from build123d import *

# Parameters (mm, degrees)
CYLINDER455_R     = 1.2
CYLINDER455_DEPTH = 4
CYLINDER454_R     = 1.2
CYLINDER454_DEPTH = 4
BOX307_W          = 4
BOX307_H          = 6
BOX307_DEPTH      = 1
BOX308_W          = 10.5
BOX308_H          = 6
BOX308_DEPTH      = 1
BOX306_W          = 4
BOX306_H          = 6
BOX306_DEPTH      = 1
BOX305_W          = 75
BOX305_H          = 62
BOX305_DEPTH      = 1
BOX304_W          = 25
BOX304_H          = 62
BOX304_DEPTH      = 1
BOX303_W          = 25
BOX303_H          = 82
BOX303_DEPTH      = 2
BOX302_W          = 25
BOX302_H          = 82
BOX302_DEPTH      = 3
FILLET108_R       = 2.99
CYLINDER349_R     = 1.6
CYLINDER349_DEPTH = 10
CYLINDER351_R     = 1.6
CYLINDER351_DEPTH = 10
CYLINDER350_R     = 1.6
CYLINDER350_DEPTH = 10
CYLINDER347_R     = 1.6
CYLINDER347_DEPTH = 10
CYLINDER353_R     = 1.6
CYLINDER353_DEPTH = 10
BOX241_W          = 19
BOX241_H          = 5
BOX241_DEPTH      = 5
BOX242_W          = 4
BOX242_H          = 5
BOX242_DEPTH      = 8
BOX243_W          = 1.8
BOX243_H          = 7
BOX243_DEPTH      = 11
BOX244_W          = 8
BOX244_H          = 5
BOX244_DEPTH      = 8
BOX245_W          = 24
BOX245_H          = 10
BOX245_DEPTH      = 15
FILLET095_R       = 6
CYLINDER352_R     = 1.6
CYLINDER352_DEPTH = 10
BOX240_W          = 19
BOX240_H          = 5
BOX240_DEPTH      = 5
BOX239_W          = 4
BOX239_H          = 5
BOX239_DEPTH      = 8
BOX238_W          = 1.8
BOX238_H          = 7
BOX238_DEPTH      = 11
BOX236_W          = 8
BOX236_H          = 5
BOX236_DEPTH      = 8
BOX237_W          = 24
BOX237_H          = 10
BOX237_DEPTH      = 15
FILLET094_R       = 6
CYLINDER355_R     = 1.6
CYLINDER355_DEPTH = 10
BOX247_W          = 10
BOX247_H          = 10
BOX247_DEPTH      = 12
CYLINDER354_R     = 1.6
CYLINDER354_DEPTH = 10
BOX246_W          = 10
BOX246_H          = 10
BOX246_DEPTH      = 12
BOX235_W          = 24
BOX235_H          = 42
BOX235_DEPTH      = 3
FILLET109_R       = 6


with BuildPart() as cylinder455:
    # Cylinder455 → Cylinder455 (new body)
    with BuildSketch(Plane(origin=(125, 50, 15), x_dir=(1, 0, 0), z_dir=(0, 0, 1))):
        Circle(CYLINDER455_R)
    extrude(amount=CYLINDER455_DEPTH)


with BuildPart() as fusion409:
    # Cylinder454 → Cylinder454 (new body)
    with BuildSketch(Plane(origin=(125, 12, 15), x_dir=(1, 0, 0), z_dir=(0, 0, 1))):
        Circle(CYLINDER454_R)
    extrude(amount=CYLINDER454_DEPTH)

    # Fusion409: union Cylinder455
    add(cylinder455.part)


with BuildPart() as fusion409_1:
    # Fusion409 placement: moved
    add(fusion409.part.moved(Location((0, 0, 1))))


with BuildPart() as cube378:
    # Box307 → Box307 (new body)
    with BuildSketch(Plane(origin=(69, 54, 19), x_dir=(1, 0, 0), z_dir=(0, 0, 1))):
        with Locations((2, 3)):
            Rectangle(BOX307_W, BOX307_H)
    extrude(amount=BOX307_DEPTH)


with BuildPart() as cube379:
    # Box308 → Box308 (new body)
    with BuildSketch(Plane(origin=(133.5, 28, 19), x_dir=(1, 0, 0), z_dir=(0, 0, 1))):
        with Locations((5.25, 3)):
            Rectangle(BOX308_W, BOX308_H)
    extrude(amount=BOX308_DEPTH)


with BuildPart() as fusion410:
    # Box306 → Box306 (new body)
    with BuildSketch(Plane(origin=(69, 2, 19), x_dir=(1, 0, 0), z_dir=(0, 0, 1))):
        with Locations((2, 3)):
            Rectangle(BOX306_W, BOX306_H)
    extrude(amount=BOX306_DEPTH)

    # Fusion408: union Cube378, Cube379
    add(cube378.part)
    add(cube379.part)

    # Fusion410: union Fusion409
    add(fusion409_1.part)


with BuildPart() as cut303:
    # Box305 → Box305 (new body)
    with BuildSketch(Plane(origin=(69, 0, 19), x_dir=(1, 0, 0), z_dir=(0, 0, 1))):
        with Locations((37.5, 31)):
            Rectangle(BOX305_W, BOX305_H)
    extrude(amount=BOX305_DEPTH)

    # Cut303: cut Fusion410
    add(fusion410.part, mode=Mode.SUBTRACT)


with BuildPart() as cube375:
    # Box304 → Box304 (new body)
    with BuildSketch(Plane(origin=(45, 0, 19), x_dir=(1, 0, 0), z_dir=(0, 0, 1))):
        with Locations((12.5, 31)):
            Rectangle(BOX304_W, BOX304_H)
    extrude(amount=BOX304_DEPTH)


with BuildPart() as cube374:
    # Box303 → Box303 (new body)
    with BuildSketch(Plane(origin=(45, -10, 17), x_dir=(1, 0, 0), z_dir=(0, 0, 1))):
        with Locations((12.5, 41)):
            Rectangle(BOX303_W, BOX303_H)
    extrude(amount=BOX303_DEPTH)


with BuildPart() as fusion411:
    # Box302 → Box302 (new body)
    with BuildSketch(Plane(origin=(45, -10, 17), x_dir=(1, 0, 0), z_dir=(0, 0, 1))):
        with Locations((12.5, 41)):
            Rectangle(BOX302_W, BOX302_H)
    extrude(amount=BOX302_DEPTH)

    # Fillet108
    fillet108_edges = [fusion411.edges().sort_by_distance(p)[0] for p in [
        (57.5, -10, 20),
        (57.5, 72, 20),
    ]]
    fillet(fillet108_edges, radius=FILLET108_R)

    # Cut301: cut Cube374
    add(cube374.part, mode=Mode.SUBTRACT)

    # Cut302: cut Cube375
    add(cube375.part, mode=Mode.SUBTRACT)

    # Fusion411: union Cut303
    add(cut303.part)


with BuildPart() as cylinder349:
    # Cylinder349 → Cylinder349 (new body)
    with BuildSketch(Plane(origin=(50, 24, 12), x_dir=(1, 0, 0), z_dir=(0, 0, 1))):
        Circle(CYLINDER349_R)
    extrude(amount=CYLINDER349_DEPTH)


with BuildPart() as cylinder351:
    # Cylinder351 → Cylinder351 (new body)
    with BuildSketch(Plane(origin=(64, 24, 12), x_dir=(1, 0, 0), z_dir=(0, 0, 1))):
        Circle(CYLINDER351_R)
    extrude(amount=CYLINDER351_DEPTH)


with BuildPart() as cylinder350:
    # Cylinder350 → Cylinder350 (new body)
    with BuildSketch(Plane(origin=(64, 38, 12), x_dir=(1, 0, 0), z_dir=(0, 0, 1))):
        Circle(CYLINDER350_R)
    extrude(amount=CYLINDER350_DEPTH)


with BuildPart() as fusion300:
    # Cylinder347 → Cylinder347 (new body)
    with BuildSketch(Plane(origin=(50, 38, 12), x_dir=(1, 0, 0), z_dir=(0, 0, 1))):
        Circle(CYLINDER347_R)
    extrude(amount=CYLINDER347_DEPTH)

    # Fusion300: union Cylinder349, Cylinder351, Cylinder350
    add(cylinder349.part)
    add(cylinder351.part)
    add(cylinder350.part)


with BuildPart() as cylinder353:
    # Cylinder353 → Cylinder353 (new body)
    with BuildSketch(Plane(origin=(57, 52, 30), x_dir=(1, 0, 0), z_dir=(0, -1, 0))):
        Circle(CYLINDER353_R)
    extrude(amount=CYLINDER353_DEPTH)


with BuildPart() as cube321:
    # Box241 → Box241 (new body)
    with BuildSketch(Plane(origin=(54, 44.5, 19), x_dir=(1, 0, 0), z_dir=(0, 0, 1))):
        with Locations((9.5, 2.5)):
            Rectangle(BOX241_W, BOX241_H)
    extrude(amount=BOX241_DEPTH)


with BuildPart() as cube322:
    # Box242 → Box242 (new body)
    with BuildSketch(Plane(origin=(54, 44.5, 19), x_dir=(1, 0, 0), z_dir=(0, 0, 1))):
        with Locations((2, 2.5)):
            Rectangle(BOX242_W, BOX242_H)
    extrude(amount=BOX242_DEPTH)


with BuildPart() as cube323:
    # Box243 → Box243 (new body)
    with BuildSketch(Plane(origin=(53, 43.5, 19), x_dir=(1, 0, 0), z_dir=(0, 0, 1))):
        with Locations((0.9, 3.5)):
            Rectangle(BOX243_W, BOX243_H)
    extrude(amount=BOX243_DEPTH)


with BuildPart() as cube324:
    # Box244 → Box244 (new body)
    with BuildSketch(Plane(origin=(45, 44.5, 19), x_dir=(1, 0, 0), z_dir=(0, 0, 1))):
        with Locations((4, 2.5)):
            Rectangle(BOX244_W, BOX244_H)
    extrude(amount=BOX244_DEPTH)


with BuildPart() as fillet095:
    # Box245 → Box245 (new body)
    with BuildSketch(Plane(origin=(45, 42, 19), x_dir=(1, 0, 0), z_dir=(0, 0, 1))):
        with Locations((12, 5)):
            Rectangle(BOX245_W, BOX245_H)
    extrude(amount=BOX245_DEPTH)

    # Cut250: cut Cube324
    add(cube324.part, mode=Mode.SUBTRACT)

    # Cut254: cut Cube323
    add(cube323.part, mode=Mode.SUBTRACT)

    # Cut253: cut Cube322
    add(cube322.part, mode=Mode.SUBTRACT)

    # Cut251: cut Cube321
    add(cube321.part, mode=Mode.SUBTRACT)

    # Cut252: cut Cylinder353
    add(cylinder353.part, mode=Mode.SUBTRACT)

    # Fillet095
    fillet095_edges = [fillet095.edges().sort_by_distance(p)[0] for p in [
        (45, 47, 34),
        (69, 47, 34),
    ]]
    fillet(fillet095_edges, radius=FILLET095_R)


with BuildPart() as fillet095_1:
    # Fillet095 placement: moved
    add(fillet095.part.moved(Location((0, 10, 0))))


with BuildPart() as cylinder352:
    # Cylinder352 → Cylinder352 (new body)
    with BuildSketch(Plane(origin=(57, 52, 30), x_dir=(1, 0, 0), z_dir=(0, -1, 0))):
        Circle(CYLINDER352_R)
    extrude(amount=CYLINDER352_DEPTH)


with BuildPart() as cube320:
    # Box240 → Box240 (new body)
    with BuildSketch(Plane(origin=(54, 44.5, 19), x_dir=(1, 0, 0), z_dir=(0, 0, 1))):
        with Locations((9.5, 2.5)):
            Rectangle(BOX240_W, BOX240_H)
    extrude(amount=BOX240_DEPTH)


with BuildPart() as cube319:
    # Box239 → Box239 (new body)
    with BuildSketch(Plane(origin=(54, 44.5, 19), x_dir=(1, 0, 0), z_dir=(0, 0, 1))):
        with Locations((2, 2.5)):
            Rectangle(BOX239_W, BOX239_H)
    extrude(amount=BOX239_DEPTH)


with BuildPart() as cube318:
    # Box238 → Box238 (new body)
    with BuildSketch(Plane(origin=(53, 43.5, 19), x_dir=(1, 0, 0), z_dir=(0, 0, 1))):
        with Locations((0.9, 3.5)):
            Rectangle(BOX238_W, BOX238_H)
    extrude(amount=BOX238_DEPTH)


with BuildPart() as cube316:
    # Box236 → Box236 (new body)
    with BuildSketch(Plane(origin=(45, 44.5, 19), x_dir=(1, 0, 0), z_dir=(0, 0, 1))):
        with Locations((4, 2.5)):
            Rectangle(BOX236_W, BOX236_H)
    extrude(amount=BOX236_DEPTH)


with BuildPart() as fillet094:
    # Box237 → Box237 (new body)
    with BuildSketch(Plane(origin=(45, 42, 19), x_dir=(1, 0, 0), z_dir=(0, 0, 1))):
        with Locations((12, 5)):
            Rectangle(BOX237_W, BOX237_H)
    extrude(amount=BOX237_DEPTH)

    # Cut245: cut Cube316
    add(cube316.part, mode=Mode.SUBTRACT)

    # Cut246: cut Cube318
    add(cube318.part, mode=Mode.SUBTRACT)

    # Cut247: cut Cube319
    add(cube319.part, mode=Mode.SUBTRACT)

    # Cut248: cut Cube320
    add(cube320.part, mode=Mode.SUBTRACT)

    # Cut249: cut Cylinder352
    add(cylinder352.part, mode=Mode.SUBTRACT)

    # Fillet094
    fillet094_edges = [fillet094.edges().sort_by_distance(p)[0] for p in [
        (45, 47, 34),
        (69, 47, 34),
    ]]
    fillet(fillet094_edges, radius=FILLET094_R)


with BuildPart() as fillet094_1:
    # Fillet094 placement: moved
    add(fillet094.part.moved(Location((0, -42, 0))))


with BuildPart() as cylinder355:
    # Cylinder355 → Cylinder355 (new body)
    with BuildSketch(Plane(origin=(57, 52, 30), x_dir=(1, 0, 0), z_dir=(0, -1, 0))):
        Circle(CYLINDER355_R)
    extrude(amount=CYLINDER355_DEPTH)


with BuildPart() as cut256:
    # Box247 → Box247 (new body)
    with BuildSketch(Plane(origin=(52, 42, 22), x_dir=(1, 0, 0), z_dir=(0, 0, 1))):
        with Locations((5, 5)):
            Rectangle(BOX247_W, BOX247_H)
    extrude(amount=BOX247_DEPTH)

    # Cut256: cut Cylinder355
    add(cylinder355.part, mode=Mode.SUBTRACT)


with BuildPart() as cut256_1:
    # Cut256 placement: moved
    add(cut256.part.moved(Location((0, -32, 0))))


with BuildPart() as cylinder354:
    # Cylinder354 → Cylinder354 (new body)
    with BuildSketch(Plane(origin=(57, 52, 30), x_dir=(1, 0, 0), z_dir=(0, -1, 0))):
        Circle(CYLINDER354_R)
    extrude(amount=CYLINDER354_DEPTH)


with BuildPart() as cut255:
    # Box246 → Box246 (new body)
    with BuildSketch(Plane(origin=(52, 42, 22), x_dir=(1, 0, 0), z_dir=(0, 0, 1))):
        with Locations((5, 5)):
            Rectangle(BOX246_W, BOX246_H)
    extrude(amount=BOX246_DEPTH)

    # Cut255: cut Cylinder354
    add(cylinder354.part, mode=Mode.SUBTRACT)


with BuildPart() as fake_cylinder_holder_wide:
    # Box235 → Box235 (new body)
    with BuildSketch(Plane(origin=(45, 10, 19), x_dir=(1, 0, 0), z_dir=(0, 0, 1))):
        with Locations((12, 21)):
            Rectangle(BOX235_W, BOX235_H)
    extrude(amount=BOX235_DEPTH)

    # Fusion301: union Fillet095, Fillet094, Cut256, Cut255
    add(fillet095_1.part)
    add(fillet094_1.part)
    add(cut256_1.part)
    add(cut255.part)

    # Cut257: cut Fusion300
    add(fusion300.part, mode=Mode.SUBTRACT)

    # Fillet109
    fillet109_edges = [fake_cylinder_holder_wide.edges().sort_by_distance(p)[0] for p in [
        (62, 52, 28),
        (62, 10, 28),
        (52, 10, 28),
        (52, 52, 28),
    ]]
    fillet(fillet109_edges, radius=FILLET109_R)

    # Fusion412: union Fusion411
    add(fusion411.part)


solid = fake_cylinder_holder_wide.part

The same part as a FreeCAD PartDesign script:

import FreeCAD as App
import Part
import Sketcher

V = App.Vector


def edges_at(feature, points):
    """Names of the edges that pass closest to the given points."""
    edges = feature.Shape.Edges
    near = lambda p: min(range(len(edges)), key=lambda i: edges[i].distToShape(Part.Vertex(*p))[0])
    return sorted({f"Edge{near(p) + 1}" for p in points})


def add_polygon(sketch, points):
    """Adds a closed chain of lines whose ends are joined by coincident constraints."""
    first, n = sketch.GeometryCount, len(points)
    for a, b in zip(points, points[1:] + points[:1]):
        sketch.addGeometry(Part.LineSegment(App.Vector(*a, 0), App.Vector(*b, 0)), False)
    for i in range(n):
        sketch.addConstraint(Sketcher.Constraint("Coincident", first + i, 2, first + (i + 1) % n, 1))

doc = App.newDocument("Part")
body = doc.addObject("PartDesign::Body", "Body")

# Sketch on XY plane
sketch1 = doc.addObject("Sketcher::SketchObject", "Sketch")
body.addObject(sketch1)
sketch1.AttachmentSupport = (doc.XY_Plane, [""])
sketch1.MapMode = "FlatFace"
sketch1.AttachmentOffset = App.Placement(V(0, 0, 15), App.Rotation())
sketch1.addGeometry(Part.Circle(V(125, 50, 0), V(0, 0, 1), 1.2), False)
sketch1.addConstraint(Sketcher.Constraint("Diameter", 0, 2.4))
sketch1.addConstraint(Sketcher.Constraint("DistanceX", -1, 1, 0, 3, 125.0))
sketch1.addConstraint(Sketcher.Constraint("DistanceY", -1, 1, 0, 3, 50.0))
pad1 = doc.addObject("PartDesign::Pad", "Pad")
body.addObject(pad1)
pad1.Profile = sketch1
pad1.Length = 4
body2 = doc.addObject("PartDesign::Body", "Body001")
body2.AllowCompound = True

# Sketch on XY plane
sketch2 = doc.addObject("Sketcher::SketchObject", "Sketch001")
body2.addObject(sketch2)
sketch2.AttachmentSupport = (doc.getObject("XY_Plane001"), [""])
sketch2.MapMode = "FlatFace"
sketch2.AttachmentOffset = App.Placement(V(0, 0, 15), App.Rotation())
sketch2.addGeometry(Part.Circle(V(125, 12, 0), V(0, 0, 1), 1.2), False)
sketch2.addConstraint(Sketcher.Constraint("Diameter", 0, 2.4))
sketch2.addConstraint(Sketcher.Constraint("DistanceX", -1, 1, 0, 3, 125.0))
sketch2.addConstraint(Sketcher.Constraint("DistanceY", -1, 1, 0, 3, 12.0))
pad2 = doc.addObject("PartDesign::Pad", "Pad001")
body2.addObject(pad2)
pad2.Profile = sketch2
pad2.Length = 4
doc.recompute()

boolean = doc.addObject("PartDesign::Boolean", "Boolean")
body2.addObject(boolean)
boolean.Type = "Fuse"
boolean.addObjects([body])
body3 = doc.addObject("PartDesign::Body", "Body002")
body3.AllowCompound = True
doc.recompute()

body2.Placement = App.Placement(V(0, 0, 1), App.Rotation(V(0, 0, 1), 0))
boolean2 = doc.addObject("PartDesign::Boolean", "Boolean001")
body3.addObject(boolean2)
boolean2.Type = "Fuse"
boolean2.addObjects([body2])
body4 = doc.addObject("PartDesign::Body", "Body003")

# Sketch on XY plane
sketch3 = doc.addObject("Sketcher::SketchObject", "Sketch002")
body4.addObject(sketch3)
sketch3.AttachmentSupport = (doc.getObject("XY_Plane003"), [""])
sketch3.MapMode = "FlatFace"
sketch3.AttachmentOffset = App.Placement(V(0, 0, 19), App.Rotation())
add_polygon(sketch3, [(69, 60), (69, 54), (73, 54), (73, 60)])  # lines 0-3
sketch3.addConstraint(Sketcher.Constraint("Vertical", 0))
sketch3.addConstraint(Sketcher.Constraint("Horizontal", 1))
sketch3.addConstraint(Sketcher.Constraint("Vertical", 2))
sketch3.addConstraint(Sketcher.Constraint("Horizontal", 3))
sketch3.addConstraint(Sketcher.Constraint("DistanceX", 1, 1, 1, 2, 4.0))
sketch3.addConstraint(Sketcher.Constraint("DistanceY", 0, 2, 0, 1, 6.0))
sketch3.addConstraint(Sketcher.Constraint("DistanceX", -1, 1, 0, 2, 69.0))
sketch3.addConstraint(Sketcher.Constraint("DistanceY", -1, 1, 0, 2, 54.0))
pad3 = doc.addObject("PartDesign::Pad", "Pad002")
body4.addObject(pad3)
pad3.Profile = sketch3
pad3.Length = 1
body5 = doc.addObject("PartDesign::Body", "Body004")

# Sketch on XY plane
sketch4 = doc.addObject("Sketcher::SketchObject", "Sketch003")
body5.addObject(sketch4)
sketch4.AttachmentSupport = (doc.getObject("XY_Plane004"), [""])
sketch4.MapMode = "FlatFace"
sketch4.AttachmentOffset = App.Placement(V(0, 0, 19), App.Rotation())
add_polygon(sketch4, [(134, 34), (134, 28), (144, 28), (144, 34)])  # lines 0-3
sketch4.addConstraint(Sketcher.Constraint("Vertical", 0))
sketch4.addConstraint(Sketcher.Constraint("Horizontal", 1))
sketch4.addConstraint(Sketcher.Constraint("Vertical", 2))
sketch4.addConstraint(Sketcher.Constraint("Horizontal", 3))
sketch4.addConstraint(Sketcher.Constraint("DistanceY", 0, 2, 0, 1, 6.0))
sketch4.addConstraint(Sketcher.Constraint("DistanceX", 1, 1, 1, 2, 10.5))
sketch4.addConstraint(Sketcher.Constraint("DistanceY", -1, 1, 0, 2, 28.0))
sketch4.addConstraint(Sketcher.Constraint("DistanceX", -1, 1, 1, 2, 144.0))
pad4 = doc.addObject("PartDesign::Pad", "Pad003")
body5.addObject(pad4)
pad4.Profile = sketch4
pad4.Length = 1
body6 = doc.addObject("PartDesign::Body", "Body005")
body6.AllowCompound = True

# Sketch on XY plane
sketch5 = doc.addObject("Sketcher::SketchObject", "Sketch004")
body6.addObject(sketch5)
sketch5.AttachmentSupport = (doc.getObject("XY_Plane005"), [""])
sketch5.MapMode = "FlatFace"
sketch5.AttachmentOffset = App.Placement(V(0, 0, 19), App.Rotation())
add_polygon(sketch5, [(69, 8), (69, 2), (73, 2), (73, 8)])  # lines 0-3
sketch5.addConstraint(Sketcher.Constraint("Vertical", 0))
sketch5.addConstraint(Sketcher.Constraint("Horizontal", 1))
sketch5.addConstraint(Sketcher.Constraint("Vertical", 2))
sketch5.addConstraint(Sketcher.Constraint("Horizontal", 3))
sketch5.addConstraint(Sketcher.Constraint("DistanceX", 1, 1, 1, 2, 4.0))
sketch5.addConstraint(Sketcher.Constraint("DistanceY", 0, 2, 0, 1, 6.0))
sketch5.addConstraint(Sketcher.Constraint("DistanceX", -1, 1, 0, 2, 69.0))
sketch5.addConstraint(Sketcher.Constraint("DistanceY", -1, 1, 0, 2, 2.0))
pad5 = doc.addObject("PartDesign::Pad", "Pad004")
body6.addObject(pad5)
pad5.Profile = sketch5
pad5.Length = 1
doc.recompute()

boolean3 = doc.addObject("PartDesign::Boolean", "Boolean002")
body6.addObject(boolean3)
boolean3.Type = "Fuse"
boolean3.addObjects([body4])
doc.recompute()

boolean4 = doc.addObject("PartDesign::Boolean", "Boolean003")
body6.addObject(boolean4)
boolean4.Type = "Fuse"
boolean4.addObjects([body5])
doc.recompute()

boolean5 = doc.addObject("PartDesign::Boolean", "Boolean004")
body6.addObject(boolean5)
boolean5.Type = "Fuse"
boolean5.addObjects([body3])
body7 = doc.addObject("PartDesign::Body", "Body006")

# Sketch on XY plane
sketch6 = doc.addObject("Sketcher::SketchObject", "Sketch005")
body7.addObject(sketch6)
sketch6.AttachmentSupport = (doc.getObject("XY_Plane006"), [""])
sketch6.MapMode = "FlatFace"
sketch6.AttachmentOffset = App.Placement(V(0, 0, 19), App.Rotation())
add_polygon(sketch6, [(69, 62), (69, 0), (144, 0), (144, 62)])  # lines 0-3
sketch6.addConstraint(Sketcher.Constraint("Vertical", 0))
sketch6.addConstraint(Sketcher.Constraint("Horizontal", 1))
sketch6.addConstraint(Sketcher.Constraint("Vertical", 2))
sketch6.addConstraint(Sketcher.Constraint("Horizontal", 3))
sketch6.addConstraint(Sketcher.Constraint("PointOnObject", 0, 2, -1))
sketch6.addConstraint(Sketcher.Constraint("DistanceX", 1, 1, 1, 2, 75.0))
sketch6.addConstraint(Sketcher.Constraint("DistanceY", 0, 2, 0, 1, 62.0))
sketch6.addConstraint(Sketcher.Constraint("DistanceX", -1, 1, 0, 2, 69.0))
pad6 = doc.addObject("PartDesign::Pad", "Pad005")
body7.addObject(pad6)
pad6.Profile = sketch6
pad6.Length = 1
doc.recompute()

boolean6 = doc.addObject("PartDesign::Boolean", "Boolean005")
body7.addObject(boolean6)
boolean6.Type = "Cut"
boolean6.addObjects([body6])
body8 = doc.addObject("PartDesign::Body", "Body007")

# Sketch on XY plane
sketch7 = doc.addObject("Sketcher::SketchObject", "Sketch006")
body8.addObject(sketch7)
sketch7.AttachmentSupport = (doc.getObject("XY_Plane007"), [""])
sketch7.MapMode = "FlatFace"
sketch7.AttachmentOffset = App.Placement(V(0, 0, 19), App.Rotation())
add_polygon(sketch7, [(45, 62), (45, 0), (70, 0), (70, 62)])  # lines 0-3
sketch7.addConstraint(Sketcher.Constraint("Vertical", 0))
sketch7.addConstraint(Sketcher.Constraint("Horizontal", 1))
sketch7.addConstraint(Sketcher.Constraint("Vertical", 2))
sketch7.addConstraint(Sketcher.Constraint("Horizontal", 3))
sketch7.addConstraint(Sketcher.Constraint("PointOnObject", 0, 2, -1))
sketch7.addConstraint(Sketcher.Constraint("DistanceX", 1, 1, 1, 2, 25.0))
sketch7.addConstraint(Sketcher.Constraint("DistanceY", 0, 2, 0, 1, 62.0))
sketch7.addConstraint(Sketcher.Constraint("DistanceX", -1, 1, 0, 2, 45.0))
pad7 = doc.addObject("PartDesign::Pad", "Pad006")
body8.addObject(pad7)
pad7.Profile = sketch7
pad7.Length = 1
body9 = doc.addObject("PartDesign::Body", "Body008")

# Sketch on XY plane
sketch8 = doc.addObject("Sketcher::SketchObject", "Sketch007")
body9.addObject(sketch8)
sketch8.AttachmentSupport = (doc.getObject("XY_Plane008"), [""])
sketch8.MapMode = "FlatFace"
sketch8.AttachmentOffset = App.Placement(V(0, 0, 17), App.Rotation())
add_polygon(sketch8, [(45, 72), (45, -10), (70, -10), (70, 72)])  # lines 0-3
sketch8.addConstraint(Sketcher.Constraint("Vertical", 0))
sketch8.addConstraint(Sketcher.Constraint("Horizontal", 1))
sketch8.addConstraint(Sketcher.Constraint("Vertical", 2))
sketch8.addConstraint(Sketcher.Constraint("Horizontal", 3))
sketch8.addConstraint(Sketcher.Constraint("DistanceX", 1, 1, 1, 2, 25.0))
sketch8.addConstraint(Sketcher.Constraint("DistanceY", 0, 2, 0, 1, 82.0))
sketch8.addConstraint(Sketcher.Constraint("DistanceX", -1, 1, 0, 2, 45.0))
sketch8.addConstraint(Sketcher.Constraint("DistanceY", 0, 2, -1, 1, 10.0))
pad8 = doc.addObject("PartDesign::Pad", "Pad007")
body9.addObject(pad8)
pad8.Profile = sketch8
pad8.Length = 2
body10 = doc.addObject("PartDesign::Body", "Body009")
body10.AllowCompound = True

# Sketch on XY plane
sketch9 = doc.addObject("Sketcher::SketchObject", "Sketch008")
body10.addObject(sketch9)
sketch9.AttachmentSupport = (doc.getObject("XY_Plane009"), [""])
sketch9.MapMode = "FlatFace"
sketch9.AttachmentOffset = App.Placement(V(0, 0, 17), App.Rotation())
add_polygon(sketch9, [(45, 72), (45, -10), (70, -10), (70, 72)])  # lines 0-3
sketch9.addConstraint(Sketcher.Constraint("Vertical", 0))
sketch9.addConstraint(Sketcher.Constraint("Horizontal", 1))
sketch9.addConstraint(Sketcher.Constraint("Vertical", 2))
sketch9.addConstraint(Sketcher.Constraint("Horizontal", 3))
sketch9.addConstraint(Sketcher.Constraint("DistanceX", 1, 1, 1, 2, 25.0))
sketch9.addConstraint(Sketcher.Constraint("DistanceY", 0, 2, 0, 1, 82.0))
sketch9.addConstraint(Sketcher.Constraint("DistanceX", -1, 1, 0, 2, 45.0))
sketch9.addConstraint(Sketcher.Constraint("DistanceY", 0, 2, -1, 1, 10.0))
pad9 = doc.addObject("PartDesign::Pad", "Pad008")
body10.addObject(pad9)
pad9.Profile = sketch9
pad9.Length = 3
doc.recompute()

fillet = doc.addObject("PartDesign::Fillet", "Fillet")
body10.addObject(fillet)
fillet.Base = (pad9, edges_at(pad9, [(57.5, -10, 20), (57.5, 72, 20)]))
fillet.Radius = 2.99
doc.recompute()

boolean7 = doc.addObject("PartDesign::Boolean", "Boolean006")
body10.addObject(boolean7)
boolean7.Type = "Cut"
boolean7.addObjects([body9])
doc.recompute()

boolean8 = doc.addObject("PartDesign::Boolean", "Boolean007")
body10.addObject(boolean8)
boolean8.Type = "Cut"
boolean8.addObjects([body8])
doc.recompute()

boolean9 = doc.addObject("PartDesign::Boolean", "Boolean008")
body10.addObject(boolean9)
boolean9.Type = "Fuse"
boolean9.addObjects([body7])
body11 = doc.addObject("PartDesign::Body", "Body010")

# Sketch on XY plane
sketch10 = doc.addObject("Sketcher::SketchObject", "Sketch009")
body11.addObject(sketch10)
sketch10.AttachmentSupport = (doc.getObject("XY_Plane010"), [""])
sketch10.MapMode = "FlatFace"
sketch10.AttachmentOffset = App.Placement(V(0, 0, 12), App.Rotation())
sketch10.addGeometry(Part.Circle(V(50, 24, 0), V(0, 0, 1), 1.6), False)
sketch10.addConstraint(Sketcher.Constraint("Diameter", 0, 3.2))
sketch10.addConstraint(Sketcher.Constraint("DistanceX", -1, 1, 0, 3, 50.0))
sketch10.addConstraint(Sketcher.Constraint("DistanceY", -1, 1, 0, 3, 24.0))
pad10 = doc.addObject("PartDesign::Pad", "Pad009")
body11.addObject(pad10)
pad10.Profile = sketch10
pad10.Length = 10
body12 = doc.addObject("PartDesign::Body", "Body011")

# Sketch on XY plane
sketch11 = doc.addObject("Sketcher::SketchObject", "Sketch010")
body12.addObject(sketch11)
sketch11.AttachmentSupport = (doc.getObject("XY_Plane011"), [""])
sketch11.MapMode = "FlatFace"
sketch11.AttachmentOffset = App.Placement(V(0, 0, 12), App.Rotation())
sketch11.addGeometry(Part.Circle(V(64, 24, 0), V(0, 0, 1), 1.6), False)
sketch11.addConstraint(Sketcher.Constraint("Diameter", 0, 3.2))
sketch11.addConstraint(Sketcher.Constraint("DistanceX", -1, 1, 0, 3, 64.0))
sketch11.addConstraint(Sketcher.Constraint("DistanceY", -1, 1, 0, 3, 24.0))
pad11 = doc.addObject("PartDesign::Pad", "Pad010")
body12.addObject(pad11)
pad11.Profile = sketch11
pad11.Length = 10
body13 = doc.addObject("PartDesign::Body", "Body012")

# Sketch on XY plane
sketch12 = doc.addObject("Sketcher::SketchObject", "Sketch011")
body13.addObject(sketch12)
sketch12.AttachmentSupport = (doc.getObject("XY_Plane012"), [""])
sketch12.MapMode = "FlatFace"
sketch12.AttachmentOffset = App.Placement(V(0, 0, 12), App.Rotation())
sketch12.addGeometry(Part.Circle(V(64, 38, 0), V(0, 0, 1), 1.6), False)
sketch12.addConstraint(Sketcher.Constraint("Diameter", 0, 3.2))
sketch12.addConstraint(Sketcher.Constraint("DistanceX", -1, 1, 0, 3, 64.0))
sketch12.addConstraint(Sketcher.Constraint("DistanceY", -1, 1, 0, 3, 38.0))
pad12 = doc.addObject("PartDesign::Pad", "Pad011")
body13.addObject(pad12)
pad12.Profile = sketch12
pad12.Length = 10
body14 = doc.addObject("PartDesign::Body", "Body013")
body14.AllowCompound = True

# Sketch on XY plane
sketch13 = doc.addObject("Sketcher::SketchObject", "Sketch012")
body14.addObject(sketch13)
sketch13.AttachmentSupport = (doc.getObject("XY_Plane013"), [""])
sketch13.MapMode = "FlatFace"
sketch13.AttachmentOffset = App.Placement(V(0, 0, 12), App.Rotation())
sketch13.addGeometry(Part.Circle(V(50, 38, 0), V(0, 0, 1), 1.6), False)
sketch13.addConstraint(Sketcher.Constraint("Diameter", 0, 3.2))
sketch13.addConstraint(Sketcher.Constraint("DistanceX", -1, 1, 0, 3, 50.0))
sketch13.addConstraint(Sketcher.Constraint("DistanceY", -1, 1, 0, 3, 38.0))
pad13 = doc.addObject("PartDesign::Pad", "Pad012")
body14.addObject(pad13)
pad13.Profile = sketch13
pad13.Length = 10
doc.recompute()

boolean10 = doc.addObject("PartDesign::Boolean", "Boolean009")
body14.addObject(boolean10)
boolean10.Type = "Fuse"
boolean10.addObjects([body11])
doc.recompute()

boolean11 = doc.addObject("PartDesign::Boolean", "Boolean010")
body14.addObject(boolean11)
boolean11.Type = "Fuse"
boolean11.addObjects([body12])
doc.recompute()

boolean12 = doc.addObject("PartDesign::Boolean", "Boolean011")
body14.addObject(boolean12)
boolean12.Type = "Fuse"
boolean12.addObjects([body13])
body15 = doc.addObject("PartDesign::Body", "Body014")

# Sketch on XZ plane
sketch14 = doc.addObject("Sketcher::SketchObject", "Sketch013")
body15.addObject(sketch14)
sketch14.AttachmentSupport = (doc.getObject("XZ_Plane014"), [""])
sketch14.MapMode = "FlatFace"
sketch14.AttachmentOffset = App.Placement(V(0, 0, -52), App.Rotation())
sketch14.addGeometry(Part.Circle(V(57, 30, 0), V(0, 0, 1), 1.6), False)
sketch14.addConstraint(Sketcher.Constraint("Diameter", 0, 3.2))
sketch14.addConstraint(Sketcher.Constraint("DistanceX", -1, 1, 0, 3, 57.0))
sketch14.addConstraint(Sketcher.Constraint("DistanceY", -1, 1, 0, 3, 30.0))
pad14 = doc.addObject("PartDesign::Pad", "Pad013")
body15.addObject(pad14)
pad14.Profile = sketch14
pad14.Length = 10
body16 = doc.addObject("PartDesign::Body", "Body015")

# Sketch on XY plane
sketch15 = doc.addObject("Sketcher::SketchObject", "Sketch014")
body16.addObject(sketch15)
sketch15.AttachmentSupport = (doc.getObject("XY_Plane015"), [""])
sketch15.MapMode = "FlatFace"
sketch15.AttachmentOffset = App.Placement(V(0, 0, 19), App.Rotation())
add_polygon(sketch15, [(54, 50), (54, 44), (73, 44), (73, 50)])  # lines 0-3
sketch15.addConstraint(Sketcher.Constraint("Vertical", 0))
sketch15.addConstraint(Sketcher.Constraint("Horizontal", 1))
sketch15.addConstraint(Sketcher.Constraint("Vertical", 2))
sketch15.addConstraint(Sketcher.Constraint("Horizontal", 3))
sketch15.addConstraint(Sketcher.Constraint("DistanceX", 1, 1, 1, 2, 19.0))
sketch15.addConstraint(Sketcher.Constraint("DistanceY", 0, 2, 0, 1, 5.0))
sketch15.addConstraint(Sketcher.Constraint("DistanceX", -1, 1, 0, 2, 54.0))
sketch15.addConstraint(Sketcher.Constraint("DistanceY", -1, 1, 0, 2, 44.5))
pad15 = doc.addObject("PartDesign::Pad", "Pad014")
body16.addObject(pad15)
pad15.Profile = sketch15
pad15.Length = 5
body17 = doc.addObject("PartDesign::Body", "Body016")

# Sketch on XY plane
sketch16 = doc.addObject("Sketcher::SketchObject", "Sketch015")
body17.addObject(sketch16)
sketch16.AttachmentSupport = (doc.getObject("XY_Plane016"), [""])
sketch16.MapMode = "FlatFace"
sketch16.AttachmentOffset = App.Placement(V(0, 0, 19), App.Rotation())
add_polygon(sketch16, [(54, 49.5), (54, 44.5), (58, 44.5), (58, 49.5)])  # lines 0-3
sketch16.addConstraint(Sketcher.Constraint("Vertical", 0))
sketch16.addConstraint(Sketcher.Constraint("Horizontal", 1))
sketch16.addConstraint(Sketcher.Constraint("Vertical", 2))
sketch16.addConstraint(Sketcher.Constraint("Horizontal", 3))
sketch16.addConstraint(Sketcher.Constraint("DistanceX", 1, 1, 1, 2, 4.0))
sketch16.addConstraint(Sketcher.Constraint("DistanceY", 0, 2, 0, 1, 5.0))
sketch16.addConstraint(Sketcher.Constraint("DistanceX", -1, 1, 0, 2, 54.0))
sketch16.addConstraint(Sketcher.Constraint("DistanceY", -1, 1, 0, 2, 44.5))
pad16 = doc.addObject("PartDesign::Pad", "Pad015")
body17.addObject(pad16)
pad16.Profile = sketch16
pad16.Length = 8
body18 = doc.addObject("PartDesign::Body", "Body017")

# Sketch on XY plane
sketch17 = doc.addObject("Sketcher::SketchObject", "Sketch016")
body18.addObject(sketch17)
sketch17.AttachmentSupport = (doc.getObject("XY_Plane017"), [""])
sketch17.MapMode = "FlatFace"
sketch17.AttachmentOffset = App.Placement(V(0, 0, 19), App.Rotation())
add_polygon(sketch17, [(53, 50.5), (53, 43.5), (54.8, 43.5), (54.8, 50.5)])  # lines 0-3
sketch17.addConstraint(Sketcher.Constraint("Vertical", 0))
sketch17.addConstraint(Sketcher.Constraint("Horizontal", 1))
sketch17.addConstraint(Sketcher.Constraint("Vertical", 2))
sketch17.addConstraint(Sketcher.Constraint("Horizontal", 3))
sketch17.addConstraint(Sketcher.Constraint("DistanceY", 0, 2, 0, 1, 7.0))
sketch17.addConstraint(Sketcher.Constraint("DistanceX", 1, 1, 1, 2, 1.8))
sketch17.addConstraint(Sketcher.Constraint("DistanceX", -1, 1, 0, 2, 53.0))
sketch17.addConstraint(Sketcher.Constraint("DistanceY", -1, 1, 0, 2, 43.5))
pad17 = doc.addObject("PartDesign::Pad", "Pad016")
body18.addObject(pad17)
pad17.Profile = sketch17
pad17.Length = 11
body19 = doc.addObject("PartDesign::Body", "Body018")

# Sketch on XY plane
sketch18 = doc.addObject("Sketcher::SketchObject", "Sketch017")
body19.addObject(sketch18)
sketch18.AttachmentSupport = (doc.getObject("XY_Plane018"), [""])
sketch18.MapMode = "FlatFace"
sketch18.AttachmentOffset = App.Placement(V(0, 0, 19), App.Rotation())
add_polygon(sketch18, [(45, 50), (45, 44), (53, 44), (53, 50)])  # lines 0-3
sketch18.addConstraint(Sketcher.Constraint("Vertical", 0))
sketch18.addConstraint(Sketcher.Constraint("Horizontal", 1))
sketch18.addConstraint(Sketcher.Constraint("Vertical", 2))
sketch18.addConstraint(Sketcher.Constraint("Horizontal", 3))
sketch18.addConstraint(Sketcher.Constraint("DistanceX", 1, 1, 1, 2, 8.0))
sketch18.addConstraint(Sketcher.Constraint("DistanceY", 0, 2, 0, 1, 5.0))
sketch18.addConstraint(Sketcher.Constraint("DistanceX", -1, 1, 0, 2, 45.0))
sketch18.addConstraint(Sketcher.Constraint("DistanceY", -1, 1, 0, 2, 44.5))
pad18 = doc.addObject("PartDesign::Pad", "Pad017")
body19.addObject(pad18)
pad18.Profile = sketch18
pad18.Length = 8
body20 = doc.addObject("PartDesign::Body", "Body019")

# Sketch on XY plane
sketch19 = doc.addObject("Sketcher::SketchObject", "Sketch018")
body20.addObject(sketch19)
sketch19.AttachmentSupport = (doc.getObject("XY_Plane019"), [""])
sketch19.MapMode = "FlatFace"
sketch19.AttachmentOffset = App.Placement(V(0, 0, 19), App.Rotation())
add_polygon(sketch19, [(45, 52), (45, 42), (69, 42), (69, 52)])  # lines 0-3
sketch19.addConstraint(Sketcher.Constraint("Vertical", 0))
sketch19.addConstraint(Sketcher.Constraint("Horizontal", 1))
sketch19.addConstraint(Sketcher.Constraint("Vertical", 2))
sketch19.addConstraint(Sketcher.Constraint("Horizontal", 3))
sketch19.addConstraint(Sketcher.Constraint("DistanceX", 1, 1, 1, 2, 24.0))
sketch19.addConstraint(Sketcher.Constraint("DistanceY", 0, 2, 0, 1, 10.0))
sketch19.addConstraint(Sketcher.Constraint("DistanceX", -1, 1, 0, 2, 45.0))
sketch19.addConstraint(Sketcher.Constraint("DistanceY", -1, 1, 0, 2, 42.0))
pad19 = doc.addObject("PartDesign::Pad", "Pad018")
body20.addObject(pad19)
pad19.Profile = sketch19
pad19.Length = 15
doc.recompute()

boolean13 = doc.addObject("PartDesign::Boolean", "Boolean012")
body20.addObject(boolean13)
boolean13.Type = "Cut"
boolean13.addObjects([body19])
doc.recompute()

boolean14 = doc.addObject("PartDesign::Boolean", "Boolean013")
body20.addObject(boolean14)
boolean14.Type = "Cut"
boolean14.addObjects([body18])
doc.recompute()

boolean15 = doc.addObject("PartDesign::Boolean", "Boolean014")
body20.addObject(boolean15)
boolean15.Type = "Cut"
boolean15.addObjects([body17])
doc.recompute()

boolean16 = doc.addObject("PartDesign::Boolean", "Boolean015")
body20.addObject(boolean16)
boolean16.Type = "Cut"
boolean16.addObjects([body16])
doc.recompute()

boolean17 = doc.addObject("PartDesign::Boolean", "Boolean016")
body20.addObject(boolean17)
boolean17.Type = "Cut"
boolean17.addObjects([body15])
doc.recompute()

fillet2 = doc.addObject("PartDesign::Fillet", "Fillet001")
body20.addObject(fillet2)
fillet2.Base = (boolean17, edges_at(boolean17, [(45, 47, 34), (69, 47, 34)]))
fillet2.Radius = 6
body21 = doc.addObject("PartDesign::Body", "Body020")
doc.recompute()

body20.Placement = App.Placement(V(0, 10, 0), App.Rotation(V(0, 0, 1), 0))
boolean18 = doc.addObject("PartDesign::Boolean", "Boolean017")
body21.addObject(boolean18)
boolean18.Type = "Fuse"
boolean18.addObjects([body20])
body22 = doc.addObject("PartDesign::Body", "Body021")

# Sketch on XZ plane
sketch20 = doc.addObject("Sketcher::SketchObject", "Sketch019")
body22.addObject(sketch20)
sketch20.AttachmentSupport = (doc.getObject("XZ_Plane021"), [""])
sketch20.MapMode = "FlatFace"
sketch20.AttachmentOffset = App.Placement(V(0, 0, -52), App.Rotation())
sketch20.addGeometry(Part.Circle(V(57, 30, 0), V(0, 0, 1), 1.6), False)
sketch20.addConstraint(Sketcher.Constraint("Diameter", 0, 3.2))
sketch20.addConstraint(Sketcher.Constraint("DistanceX", -1, 1, 0, 3, 57.0))
sketch20.addConstraint(Sketcher.Constraint("DistanceY", -1, 1, 0, 3, 30.0))
pad20 = doc.addObject("PartDesign::Pad", "Pad019")
body22.addObject(pad20)
pad20.Profile = sketch20
pad20.Length = 10
body23 = doc.addObject("PartDesign::Body", "Body022")

# Sketch on XY plane
sketch21 = doc.addObject("Sketcher::SketchObject", "Sketch020")
body23.addObject(sketch21)
sketch21.AttachmentSupport = (doc.getObject("XY_Plane022"), [""])
sketch21.MapMode = "FlatFace"
sketch21.AttachmentOffset = App.Placement(V(0, 0, 19), App.Rotation())
add_polygon(sketch21, [(54, 50), (54, 44), (73, 44), (73, 50)])  # lines 0-3
sketch21.addConstraint(Sketcher.Constraint("Vertical", 0))
sketch21.addConstraint(Sketcher.Constraint("Horizontal", 1))
sketch21.addConstraint(Sketcher.Constraint("Vertical", 2))
sketch21.addConstraint(Sketcher.Constraint("Horizontal", 3))
sketch21.addConstraint(Sketcher.Constraint("DistanceX", 1, 1, 1, 2, 19.0))
sketch21.addConstraint(Sketcher.Constraint("DistanceY", 0, 2, 0, 1, 5.0))
sketch21.addConstraint(Sketcher.Constraint("DistanceX", -1, 1, 0, 2, 54.0))
sketch21.addConstraint(Sketcher.Constraint("DistanceY", -1, 1, 0, 2, 44.5))
pad21 = doc.addObject("PartDesign::Pad", "Pad020")
body23.addObject(pad21)
pad21.Profile = sketch21
pad21.Length = 5
body24 = doc.addObject("PartDesign::Body", "Body023")

# Sketch on XY plane
sketch22 = doc.addObject("Sketcher::SketchObject", "Sketch021")
body24.addObject(sketch22)
sketch22.AttachmentSupport = (doc.getObject("XY_Plane023"), [""])
sketch22.MapMode = "FlatFace"
sketch22.AttachmentOffset = App.Placement(V(0, 0, 19), App.Rotation())
add_polygon(sketch22, [(54, 49.5), (54, 44.5), (58, 44.5), (58, 49.5)])  # lines 0-3
sketch22.addConstraint(Sketcher.Constraint("Vertical", 0))
sketch22.addConstraint(Sketcher.Constraint("Horizontal", 1))
sketch22.addConstraint(Sketcher.Constraint("Vertical", 2))
sketch22.addConstraint(Sketcher.Constraint("Horizontal", 3))
sketch22.addConstraint(Sketcher.Constraint("DistanceX", 1, 1, 1, 2, 4.0))
sketch22.addConstraint(Sketcher.Constraint("DistanceY", 0, 2, 0, 1, 5.0))
sketch22.addConstraint(Sketcher.Constraint("DistanceX", -1, 1, 0, 2, 54.0))
sketch22.addConstraint(Sketcher.Constraint("DistanceY", -1, 1, 0, 2, 44.5))
pad22 = doc.addObject("PartDesign::Pad", "Pad021")
body24.addObject(pad22)
pad22.Profile = sketch22
pad22.Length = 8
body25 = doc.addObject("PartDesign::Body", "Body024")

# Sketch on XY plane
sketch23 = doc.addObject("Sketcher::SketchObject", "Sketch022")
body25.addObject(sketch23)
sketch23.AttachmentSupport = (doc.getObject("XY_Plane024"), [""])
sketch23.MapMode = "FlatFace"
sketch23.AttachmentOffset = App.Placement(V(0, 0, 19), App.Rotation())
add_polygon(sketch23, [(53, 50.5), (53, 43.5), (54.8, 43.5), (54.8, 50.5)])  # lines 0-3
sketch23.addConstraint(Sketcher.Constraint("Vertical", 0))
sketch23.addConstraint(Sketcher.Constraint("Horizontal", 1))
sketch23.addConstraint(Sketcher.Constraint("Vertical", 2))
sketch23.addConstraint(Sketcher.Constraint("Horizontal", 3))
sketch23.addConstraint(Sketcher.Constraint("DistanceY", 0, 2, 0, 1, 7.0))
sketch23.addConstraint(Sketcher.Constraint("DistanceX", 1, 1, 1, 2, 1.8))
sketch23.addConstraint(Sketcher.Constraint("DistanceX", -1, 1, 0, 2, 53.0))
sketch23.addConstraint(Sketcher.Constraint("DistanceY", -1, 1, 0, 2, 43.5))
pad23 = doc.addObject("PartDesign::Pad", "Pad022")
body25.addObject(pad23)
pad23.Profile = sketch23
pad23.Length = 11
body26 = doc.addObject("PartDesign::Body", "Body025")

# Sketch on XY plane
sketch24 = doc.addObject("Sketcher::SketchObject", "Sketch023")
body26.addObject(sketch24)
sketch24.AttachmentSupport = (doc.getObject("XY_Plane025"), [""])
sketch24.MapMode = "FlatFace"
sketch24.AttachmentOffset = App.Placement(V(0, 0, 19), App.Rotation())
add_polygon(sketch24, [(45, 50), (45, 44), (53, 44), (53, 50)])  # lines 0-3
sketch24.addConstraint(Sketcher.Constraint("Vertical", 0))
sketch24.addConstraint(Sketcher.Constraint("Horizontal", 1))
sketch24.addConstraint(Sketcher.Constraint("Vertical", 2))
sketch24.addConstraint(Sketcher.Constraint("Horizontal", 3))
sketch24.addConstraint(Sketcher.Constraint("DistanceX", 1, 1, 1, 2, 8.0))
sketch24.addConstraint(Sketcher.Constraint("DistanceY", 0, 2, 0, 1, 5.0))
sketch24.addConstraint(Sketcher.Constraint("DistanceX", -1, 1, 0, 2, 45.0))
sketch24.addConstraint(Sketcher.Constraint("DistanceY", -1, 1, 0, 2, 44.5))
pad24 = doc.addObject("PartDesign::Pad", "Pad023")
body26.addObject(pad24)
pad24.Profile = sketch24
pad24.Length = 8
body27 = doc.addObject("PartDesign::Body", "Body026")

# Sketch on XY plane
sketch25 = doc.addObject("Sketcher::SketchObject", "Sketch024")
body27.addObject(sketch25)
sketch25.AttachmentSupport = (doc.getObject("XY_Plane026"), [""])
sketch25.MapMode = "FlatFace"
sketch25.AttachmentOffset = App.Placement(V(0, 0, 19), App.Rotation())
add_polygon(sketch25, [(45, 52), (45, 42), (69, 42), (69, 52)])  # lines 0-3
sketch25.addConstraint(Sketcher.Constraint("Vertical", 0))
sketch25.addConstraint(Sketcher.Constraint("Horizontal", 1))
sketch25.addConstraint(Sketcher.Constraint("Vertical", 2))
sketch25.addConstraint(Sketcher.Constraint("Horizontal", 3))
sketch25.addConstraint(Sketcher.Constraint("DistanceX", 1, 1, 1, 2, 24.0))
sketch25.addConstraint(Sketcher.Constraint("DistanceY", 0, 2, 0, 1, 10.0))
sketch25.addConstraint(Sketcher.Constraint("DistanceX", -1, 1, 0, 2, 45.0))
sketch25.addConstraint(Sketcher.Constraint("DistanceY", -1, 1, 0, 2, 42.0))
pad25 = doc.addObject("PartDesign::Pad", "Pad024")
body27.addObject(pad25)
pad25.Profile = sketch25
pad25.Length = 15
doc.recompute()

boolean19 = doc.addObject("PartDesign::Boolean", "Boolean018")
body27.addObject(boolean19)
boolean19.Type = "Cut"
boolean19.addObjects([body26])
doc.recompute()

boolean20 = doc.addObject("PartDesign::Boolean", "Boolean019")
body27.addObject(boolean20)
boolean20.Type = "Cut"
boolean20.addObjects([body25])
doc.recompute()

boolean21 = doc.addObject("PartDesign::Boolean", "Boolean020")
body27.addObject(boolean21)
boolean21.Type = "Cut"
boolean21.addObjects([body24])
doc.recompute()

boolean22 = doc.addObject("PartDesign::Boolean", "Boolean021")
body27.addObject(boolean22)
boolean22.Type = "Cut"
boolean22.addObjects([body23])
doc.recompute()

boolean23 = doc.addObject("PartDesign::Boolean", "Boolean022")
body27.addObject(boolean23)
boolean23.Type = "Cut"
boolean23.addObjects([body22])
doc.recompute()

fillet3 = doc.addObject("PartDesign::Fillet", "Fillet002")
body27.addObject(fillet3)
fillet3.Base = (boolean23, edges_at(boolean23, [(45, 47, 34), (69, 47, 34)]))
fillet3.Radius = 6
body28 = doc.addObject("PartDesign::Body", "Body027")
doc.recompute()

body27.Placement = App.Placement(V(0, -42, 0), App.Rotation(V(0, 0, 1), 0))
boolean24 = doc.addObject("PartDesign::Boolean", "Boolean023")
body28.addObject(boolean24)
boolean24.Type = "Fuse"
boolean24.addObjects([body27])
body29 = doc.addObject("PartDesign::Body", "Body028")

# Sketch on XZ plane
sketch26 = doc.addObject("Sketcher::SketchObject", "Sketch025")
body29.addObject(sketch26)
sketch26.AttachmentSupport = (doc.getObject("XZ_Plane028"), [""])
sketch26.MapMode = "FlatFace"
sketch26.AttachmentOffset = App.Placement(V(0, 0, -52), App.Rotation())
sketch26.addGeometry(Part.Circle(V(57, 30, 0), V(0, 0, 1), 1.6), False)
sketch26.addConstraint(Sketcher.Constraint("Diameter", 0, 3.2))
sketch26.addConstraint(Sketcher.Constraint("DistanceX", -1, 1, 0, 3, 57.0))
sketch26.addConstraint(Sketcher.Constraint("DistanceY", -1, 1, 0, 3, 30.0))
pad26 = doc.addObject("PartDesign::Pad", "Pad025")
body29.addObject(pad26)
pad26.Profile = sketch26
pad26.Length = 10
body30 = doc.addObject("PartDesign::Body", "Body029")

# Sketch on XY plane
sketch27 = doc.addObject("Sketcher::SketchObject", "Sketch026")
body30.addObject(sketch27)
sketch27.AttachmentSupport = (doc.getObject("XY_Plane029"), [""])
sketch27.MapMode = "FlatFace"
sketch27.AttachmentOffset = App.Placement(V(0, 0, 22), App.Rotation())
add_polygon(sketch27, [(52, 52), (52, 42), (62, 42), (62, 52)])  # lines 0-3
sketch27.addConstraint(Sketcher.Constraint("Vertical", 0))
sketch27.addConstraint(Sketcher.Constraint("Horizontal", 1))
sketch27.addConstraint(Sketcher.Constraint("Vertical", 2))
sketch27.addConstraint(Sketcher.Constraint("Horizontal", 3))
sketch27.addConstraint(Sketcher.Constraint("Equal", 3, 0))
sketch27.addConstraint(Sketcher.Constraint("DistanceX", 1, 1, 1, 2, 10.0))
sketch27.addConstraint(Sketcher.Constraint("DistanceX", -1, 1, 0, 2, 52.0))
sketch27.addConstraint(Sketcher.Constraint("DistanceY", -1, 1, 0, 2, 42.0))
pad27 = doc.addObject("PartDesign::Pad", "Pad026")
body30.addObject(pad27)
pad27.Profile = sketch27
pad27.Length = 12
doc.recompute()

boolean25 = doc.addObject("PartDesign::Boolean", "Boolean024")
body30.addObject(boolean25)
boolean25.Type = "Cut"
boolean25.addObjects([body29])
body31 = doc.addObject("PartDesign::Body", "Body030")
doc.recompute()

body30.Placement = App.Placement(V(0, -32, 0), App.Rotation(V(0, 0, 1), 0))
boolean26 = doc.addObject("PartDesign::Boolean", "Boolean025")
body31.addObject(boolean26)
boolean26.Type = "Fuse"
boolean26.addObjects([body30])
body32 = doc.addObject("PartDesign::Body", "Body031")

# Sketch on XZ plane
sketch28 = doc.addObject("Sketcher::SketchObject", "Sketch027")
body32.addObject(sketch28)
sketch28.AttachmentSupport = (doc.getObject("XZ_Plane031"), [""])
sketch28.MapMode = "FlatFace"
sketch28.AttachmentOffset = App.Placement(V(0, 0, -52), App.Rotation())
sketch28.addGeometry(Part.Circle(V(57, 30, 0), V(0, 0, 1), 1.6), False)
sketch28.addConstraint(Sketcher.Constraint("Diameter", 0, 3.2))
sketch28.addConstraint(Sketcher.Constraint("DistanceX", -1, 1, 0, 3, 57.0))
sketch28.addConstraint(Sketcher.Constraint("DistanceY", -1, 1, 0, 3, 30.0))
pad28 = doc.addObject("PartDesign::Pad", "Pad027")
body32.addObject(pad28)
pad28.Profile = sketch28
pad28.Length = 10
body33 = doc.addObject("PartDesign::Body", "Body032")

# Sketch on XY plane
sketch29 = doc.addObject("Sketcher::SketchObject", "Sketch028")
body33.addObject(sketch29)
sketch29.AttachmentSupport = (doc.getObject("XY_Plane032"), [""])
sketch29.MapMode = "FlatFace"
sketch29.AttachmentOffset = App.Placement(V(0, 0, 22), App.Rotation())
add_polygon(sketch29, [(52, 52), (52, 42), (62, 42), (62, 52)])  # lines 0-3
sketch29.addConstraint(Sketcher.Constraint("Vertical", 0))
sketch29.addConstraint(Sketcher.Constraint("Horizontal", 1))
sketch29.addConstraint(Sketcher.Constraint("Vertical", 2))
sketch29.addConstraint(Sketcher.Constraint("Horizontal", 3))
sketch29.addConstraint(Sketcher.Constraint("Equal", 3, 0))
sketch29.addConstraint(Sketcher.Constraint("DistanceX", 1, 1, 1, 2, 10.0))
sketch29.addConstraint(Sketcher.Constraint("DistanceX", -1, 1, 0, 2, 52.0))
sketch29.addConstraint(Sketcher.Constraint("DistanceY", -1, 1, 0, 2, 42.0))
pad29 = doc.addObject("PartDesign::Pad", "Pad028")
body33.addObject(pad29)
pad29.Profile = sketch29
pad29.Length = 12
doc.recompute()

boolean27 = doc.addObject("PartDesign::Boolean", "Boolean026")
body33.addObject(boolean27)
boolean27.Type = "Cut"
boolean27.addObjects([body32])
body34 = doc.addObject("PartDesign::Body", "Body033")

# Sketch on XY plane
sketch30 = doc.addObject("Sketcher::SketchObject", "Sketch029")
body34.addObject(sketch30)
sketch30.AttachmentSupport = (doc.getObject("XY_Plane033"), [""])
sketch30.MapMode = "FlatFace"
sketch30.AttachmentOffset = App.Placement(V(0, 0, 19), App.Rotation())
add_polygon(sketch30, [(45, 52), (45, 10), (69, 10), (69, 52)])  # lines 0-3
sketch30.addConstraint(Sketcher.Constraint("Vertical", 0))
sketch30.addConstraint(Sketcher.Constraint("Horizontal", 1))
sketch30.addConstraint(Sketcher.Constraint("Vertical", 2))
sketch30.addConstraint(Sketcher.Constraint("Horizontal", 3))
sketch30.addConstraint(Sketcher.Constraint("DistanceX", 1, 1, 1, 2, 24.0))
sketch30.addConstraint(Sketcher.Constraint("DistanceY", 0, 2, 0, 1, 42.0))
sketch30.addConstraint(Sketcher.Constraint("DistanceX", -1, 1, 0, 2, 45.0))
sketch30.addConstraint(Sketcher.Constraint("DistanceY", -1, 1, 0, 2, 10.0))
pad30 = doc.addObject("PartDesign::Pad", "Pad029")
body34.addObject(pad30)
pad30.Profile = sketch30
pad30.Length = 3
doc.recompute()

boolean28 = doc.addObject("PartDesign::Boolean", "Boolean027")
body34.addObject(boolean28)
boolean28.Type = "Fuse"
boolean28.addObjects([body21])
doc.recompute()

boolean29 = doc.addObject("PartDesign::Boolean", "Boolean028")
body34.addObject(boolean29)
boolean29.Type = "Fuse"
boolean29.addObjects([body28])
doc.recompute()

boolean30 = doc.addObject("PartDesign::Boolean", "Boolean029")
body34.addObject(boolean30)
boolean30.Type = "Fuse"
boolean30.addObjects([body31])
doc.recompute()

boolean31 = doc.addObject("PartDesign::Boolean", "Boolean030")
body34.addObject(boolean31)
boolean31.Type = "Fuse"
boolean31.addObjects([body33])
doc.recompute()

boolean32 = doc.addObject("PartDesign::Boolean", "Boolean031")
body34.addObject(boolean32)
boolean32.Type = "Cut"
boolean32.addObjects([body14])
doc.recompute()

fillet4 = doc.addObject("PartDesign::Fillet", "Fillet003")
body34.addObject(fillet4)
fillet4.Base = (boolean32, edges_at(boolean32, [
    (62, 52, 28),
    (62, 10, 28),
    (52, 10, 28),
    (52, 52, 28),
]))
fillet4.Radius = 6
doc.recompute()

boolean33 = doc.addObject("PartDesign::Boolean", "Boolean032")
body34.addObject(boolean33)
boolean33.Type = "Fuse"
boolean33.addObjects([body10])

doc.recompute()
